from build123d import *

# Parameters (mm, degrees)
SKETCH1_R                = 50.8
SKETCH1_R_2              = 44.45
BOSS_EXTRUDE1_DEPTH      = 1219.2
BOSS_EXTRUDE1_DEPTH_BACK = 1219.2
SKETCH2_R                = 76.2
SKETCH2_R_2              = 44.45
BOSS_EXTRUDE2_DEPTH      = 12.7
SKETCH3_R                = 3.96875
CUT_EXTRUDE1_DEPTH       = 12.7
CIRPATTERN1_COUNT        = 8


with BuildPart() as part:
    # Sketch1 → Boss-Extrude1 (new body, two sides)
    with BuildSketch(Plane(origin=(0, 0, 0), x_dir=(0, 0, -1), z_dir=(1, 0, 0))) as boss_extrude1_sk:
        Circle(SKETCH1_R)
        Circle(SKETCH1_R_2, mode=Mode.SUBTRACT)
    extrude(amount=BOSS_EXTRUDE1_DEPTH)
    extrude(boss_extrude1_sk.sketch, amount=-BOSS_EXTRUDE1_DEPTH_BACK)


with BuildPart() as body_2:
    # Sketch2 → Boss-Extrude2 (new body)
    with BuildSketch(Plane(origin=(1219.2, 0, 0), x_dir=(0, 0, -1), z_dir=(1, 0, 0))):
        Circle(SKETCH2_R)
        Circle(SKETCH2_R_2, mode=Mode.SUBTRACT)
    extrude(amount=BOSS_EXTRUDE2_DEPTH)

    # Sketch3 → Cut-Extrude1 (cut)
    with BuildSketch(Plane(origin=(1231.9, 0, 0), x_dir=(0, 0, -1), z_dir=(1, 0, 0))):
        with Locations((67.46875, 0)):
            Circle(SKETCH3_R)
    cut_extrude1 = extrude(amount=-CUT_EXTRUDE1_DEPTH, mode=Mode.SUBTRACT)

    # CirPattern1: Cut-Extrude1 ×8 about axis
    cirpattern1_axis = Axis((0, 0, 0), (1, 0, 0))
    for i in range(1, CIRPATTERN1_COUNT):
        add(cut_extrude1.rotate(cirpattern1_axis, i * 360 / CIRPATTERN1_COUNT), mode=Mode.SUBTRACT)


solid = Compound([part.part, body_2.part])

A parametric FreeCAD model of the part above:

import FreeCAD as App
import Part
import Sketcher
Q = App.Units.Quantity

doc = App.newDocument("Part")
params = doc.addObject("Spreadsheet::Sheet", "Params")
for row, (alias, value) in enumerate([
    ("sketch1_diameter", "4 in"),
    ("sketch1_diameter2", "3.5 in"),
    ("pad1_length", "48 in"),
    ("pad1_length2", "48 in"),
    ("sketch2_diameter", "6 in"),
    ("sketch2_diameter2", "3.5 in"),
    ("pad2_length", "0.5 in"),
    ("sketch3_diameter", "0.3125 in"),
    ("pocket1_length", "0.5 in"),
], start=1):
    params.set(f"A{row}", alias)
    params.set(f"B{row}", "=" + value)
    params.setAlias(f"B{row}", alias)

body = doc.addObject("PartDesign::Body", "Body")

# Sketch on YZ plane
sketch1 = doc.addObject("Sketcher::SketchObject", "Sketch")
body.addObject(sketch1)
sketch1.AttachmentSupport = (doc.YZ_Plane, [""])
sketch1.MapMode = "FlatFace"
sketch1.addGeometry(Part.Circle(App.Vector(0, 0, 0), App.Vector(0, 0, 1), 50.8), False)
sketch1.addGeometry(Part.Circle(App.Vector(0, 0, 0), App.Vector(0, 0, 1), 44.45), False)
sketch1.addConstraint(Sketcher.Constraint("Coincident", 0, 3, -1, 1))
sketch1.addConstraint(Sketcher.Constraint("Coincident", 1, 3, -1, 1))
sketch1.addConstraint(Sketcher.Constraint("Diameter", 0, Q("4 in")))
sketch1.addConstraint(Sketcher.Constraint("Diameter", 1, Q("3.5 in")))
sketch1.setExpression("Constraints[2]", "Params.sketch1_diameter")
sketch1.setExpression("Constraints[3]", "Params.sketch1_diameter2")
pad1 = doc.addObject("PartDesign::Pad", "Pad")
body.addObject(pad1)
pad1.Profile = sketch1
pad1.Type = "TwoLengths"
pad1.setExpression("Length", "Params.pad1_length")
pad1.setExpression("Length2", "Params.pad1_length2")
body2 = doc.addObject("PartDesign::Body", "Body001")

# Sketch on YZ plane
sketch2 = doc.addObject("Sketcher::SketchObject", "Sketch001")
body2.addObject(sketch2)
sketch2.AttachmentSupport = (doc.getObject("YZ_Plane001"), [""])
sketch2.MapMode = "FlatFace"
sketch2.AttachmentOffset = App.Placement(App.Vector(0, 0, 48 * 25.4), App.Rotation())
sketch2.addGeometry(Part.Circle(App.Vector(0, 0, 0), App.Vector(0, 0, 1), 76.2), False)
sketch2.addGeometry(Part.Circle(App.Vector(0, 0, 0), App.Vector(0, 0, 1), 44.45), False)
sketch2.addConstraint(Sketcher.Constraint("Coincident", 0, 3, -1, 1))
sketch2.addConstraint(Sketcher.Constraint("Coincident", 1, 3, -1, 1))
sketch2.addConstraint(Sketcher.Constraint("Diameter", 0, Q("6 in")))
sketch2.addConstraint(Sketcher.Constraint("Diameter", 1, Q("3.5 in")))
sketch2.setExpression("Constraints[2]", "Params.sketch2_diameter")
sketch2.setExpression("Constraints[3]", "Params.sketch2_diameter2")
pad2 = doc.addObject("PartDesign::Pad", "Pad001")
body2.addObject(pad2)
pad2.Profile = sketch2
pad2.setExpression("Length", "Params.pad2_length")

# Sketch on YZ plane
sketch3 = doc.addObject("Sketcher::SketchObject", "Sketch002")
body2.addObject(sketch3)
sketch3.AttachmentSupport = (doc.getObject("YZ_Plane001"), [""])
sketch3.MapMode = "FlatFace"
sketch3.AttachmentOffset = App.Placement(App.Vector(0, 0, 48.5 * 25.4), App.Rotation())
sketch3.addGeometry(Part.Circle(App.Vector(0, -67.46875, 0), App.Vector(0, 0, 1), 3.96875), False)
sketch3.addConstraint(Sketcher.Constraint("PointOnObject", 0, 3, -2))
sketch3.addConstraint(Sketcher.Constraint("Diameter", 0, Q("0.3125 in")))
sketch3.addConstraint(Sketcher.Constraint("DistanceY", 0, 3, -1, 1, Q("2.65625 in")))
sketch3.setExpression("Constraints[1]", "Params.sketch3_diameter")
pocket1 = doc.addObject("PartDesign::Pocket", "Pocket")
body2.addObject(pocket1)
pocket1.Profile = sketch3
pocket1.setExpression("Length", "Params.pocket1_length")
doc.recompute()

polarpattern = doc.addObject("PartDesign::PolarPattern", "PolarPattern")
body2.addObject(polarpattern)
polarpattern.Originals = [pocket1]
polarpattern.Axis = (doc.getObject("X_Axis001"), [""])
polarpattern.Angle = 360
polarpattern.Occurrences = 8
body2.Tip = polarpattern

doc.recompute()
